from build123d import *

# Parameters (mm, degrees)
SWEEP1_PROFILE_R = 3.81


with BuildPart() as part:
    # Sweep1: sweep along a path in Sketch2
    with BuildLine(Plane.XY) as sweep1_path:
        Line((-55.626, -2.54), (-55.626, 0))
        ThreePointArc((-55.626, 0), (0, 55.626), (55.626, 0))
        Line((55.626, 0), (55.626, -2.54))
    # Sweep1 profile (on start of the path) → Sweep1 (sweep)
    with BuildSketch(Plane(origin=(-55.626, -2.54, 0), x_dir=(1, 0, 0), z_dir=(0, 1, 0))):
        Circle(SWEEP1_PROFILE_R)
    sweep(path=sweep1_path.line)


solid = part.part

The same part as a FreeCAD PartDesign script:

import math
import FreeCAD as App
import Part
import Sketcher

V = App.Vector
Q = App.Units.Quantity

doc = App.newDocument("Part")
body = doc.addObject("PartDesign::Body", "Body")

# Sketch on XZ plane
sketch1 = doc.addObject("Sketcher::SketchObject", "Sketch")
body.addObject(sketch1)
sketch1.AttachmentSupport = (doc.XZ_Plane, [""])
sketch1.MapMode = "FlatFace"
sketch1.AttachmentOffset = App.Placement(V(0, 0, 0.1 * 25.4), App.Rotation())
sketch1.addGeometry(Part.Circle(V(-55.6, 0, 0), V(0, 0, 1), 3.8), False)
sketch1.addConstraint([
    Sketcher.Constraint("PointOnObject", 0, 3, -1),
    Sketcher.Constraint("Diameter", 0, Q("0.3 in")),
    Sketcher.Constraint("DistanceX", 0, 3, -1, 1, Q("2.19 in")),
])

# Sketch on XY plane
sketch2 = doc.addObject("Sketcher::SketchObject", "Sketch001")
body.addObject(sketch2)
sketch2.AttachmentSupport = (doc.XY_Plane, [""])
sketch2.MapMode = "FlatFace"
sketch2.addGeometry([
    Part.LineSegment(V(-55.6, -2.5, 0), V(-55.6, 0, 0)),
    Part.ArcOfCircle(Part.Circle(V(0, 0, 0), V(0, 0, 1), 55.6), math.radians(0), math.radians(180)),
    Part.LineSegment(V(55.6, 0, 0), V(55.6, -2.5, 0)),
], False)
sketch2.addConstraint([
    Sketcher.Constraint("Tangent", 0, 2, 1, 2),
    Sketcher.Constraint("Tangent", 1, 1, 2, 1),
    Sketcher.Constraint("Vertical", 0),
    Sketcher.Constraint("Vertical", 2),
    Sketcher.Constraint("Coincident", 1, 3, -1, 1),
    Sketcher.Constraint("Horizontal", 0, 1, 2, 2),
    Sketcher.Constraint("Radius", 1, Q("2.19 in")),
    Sketcher.Constraint("DistanceY", 0, 1, 0, 2, Q("0.1 in")),
])
doc.recompute()

additivepipe = doc.addObject("PartDesign::AdditivePipe", "AdditivePipe")
body.addObject(additivepipe)
additivepipe.Profile = sketch1
additivepipe.Spine = (sketch2, ["Edge1", "Edge2", "Edge3"])

doc.recompute()
